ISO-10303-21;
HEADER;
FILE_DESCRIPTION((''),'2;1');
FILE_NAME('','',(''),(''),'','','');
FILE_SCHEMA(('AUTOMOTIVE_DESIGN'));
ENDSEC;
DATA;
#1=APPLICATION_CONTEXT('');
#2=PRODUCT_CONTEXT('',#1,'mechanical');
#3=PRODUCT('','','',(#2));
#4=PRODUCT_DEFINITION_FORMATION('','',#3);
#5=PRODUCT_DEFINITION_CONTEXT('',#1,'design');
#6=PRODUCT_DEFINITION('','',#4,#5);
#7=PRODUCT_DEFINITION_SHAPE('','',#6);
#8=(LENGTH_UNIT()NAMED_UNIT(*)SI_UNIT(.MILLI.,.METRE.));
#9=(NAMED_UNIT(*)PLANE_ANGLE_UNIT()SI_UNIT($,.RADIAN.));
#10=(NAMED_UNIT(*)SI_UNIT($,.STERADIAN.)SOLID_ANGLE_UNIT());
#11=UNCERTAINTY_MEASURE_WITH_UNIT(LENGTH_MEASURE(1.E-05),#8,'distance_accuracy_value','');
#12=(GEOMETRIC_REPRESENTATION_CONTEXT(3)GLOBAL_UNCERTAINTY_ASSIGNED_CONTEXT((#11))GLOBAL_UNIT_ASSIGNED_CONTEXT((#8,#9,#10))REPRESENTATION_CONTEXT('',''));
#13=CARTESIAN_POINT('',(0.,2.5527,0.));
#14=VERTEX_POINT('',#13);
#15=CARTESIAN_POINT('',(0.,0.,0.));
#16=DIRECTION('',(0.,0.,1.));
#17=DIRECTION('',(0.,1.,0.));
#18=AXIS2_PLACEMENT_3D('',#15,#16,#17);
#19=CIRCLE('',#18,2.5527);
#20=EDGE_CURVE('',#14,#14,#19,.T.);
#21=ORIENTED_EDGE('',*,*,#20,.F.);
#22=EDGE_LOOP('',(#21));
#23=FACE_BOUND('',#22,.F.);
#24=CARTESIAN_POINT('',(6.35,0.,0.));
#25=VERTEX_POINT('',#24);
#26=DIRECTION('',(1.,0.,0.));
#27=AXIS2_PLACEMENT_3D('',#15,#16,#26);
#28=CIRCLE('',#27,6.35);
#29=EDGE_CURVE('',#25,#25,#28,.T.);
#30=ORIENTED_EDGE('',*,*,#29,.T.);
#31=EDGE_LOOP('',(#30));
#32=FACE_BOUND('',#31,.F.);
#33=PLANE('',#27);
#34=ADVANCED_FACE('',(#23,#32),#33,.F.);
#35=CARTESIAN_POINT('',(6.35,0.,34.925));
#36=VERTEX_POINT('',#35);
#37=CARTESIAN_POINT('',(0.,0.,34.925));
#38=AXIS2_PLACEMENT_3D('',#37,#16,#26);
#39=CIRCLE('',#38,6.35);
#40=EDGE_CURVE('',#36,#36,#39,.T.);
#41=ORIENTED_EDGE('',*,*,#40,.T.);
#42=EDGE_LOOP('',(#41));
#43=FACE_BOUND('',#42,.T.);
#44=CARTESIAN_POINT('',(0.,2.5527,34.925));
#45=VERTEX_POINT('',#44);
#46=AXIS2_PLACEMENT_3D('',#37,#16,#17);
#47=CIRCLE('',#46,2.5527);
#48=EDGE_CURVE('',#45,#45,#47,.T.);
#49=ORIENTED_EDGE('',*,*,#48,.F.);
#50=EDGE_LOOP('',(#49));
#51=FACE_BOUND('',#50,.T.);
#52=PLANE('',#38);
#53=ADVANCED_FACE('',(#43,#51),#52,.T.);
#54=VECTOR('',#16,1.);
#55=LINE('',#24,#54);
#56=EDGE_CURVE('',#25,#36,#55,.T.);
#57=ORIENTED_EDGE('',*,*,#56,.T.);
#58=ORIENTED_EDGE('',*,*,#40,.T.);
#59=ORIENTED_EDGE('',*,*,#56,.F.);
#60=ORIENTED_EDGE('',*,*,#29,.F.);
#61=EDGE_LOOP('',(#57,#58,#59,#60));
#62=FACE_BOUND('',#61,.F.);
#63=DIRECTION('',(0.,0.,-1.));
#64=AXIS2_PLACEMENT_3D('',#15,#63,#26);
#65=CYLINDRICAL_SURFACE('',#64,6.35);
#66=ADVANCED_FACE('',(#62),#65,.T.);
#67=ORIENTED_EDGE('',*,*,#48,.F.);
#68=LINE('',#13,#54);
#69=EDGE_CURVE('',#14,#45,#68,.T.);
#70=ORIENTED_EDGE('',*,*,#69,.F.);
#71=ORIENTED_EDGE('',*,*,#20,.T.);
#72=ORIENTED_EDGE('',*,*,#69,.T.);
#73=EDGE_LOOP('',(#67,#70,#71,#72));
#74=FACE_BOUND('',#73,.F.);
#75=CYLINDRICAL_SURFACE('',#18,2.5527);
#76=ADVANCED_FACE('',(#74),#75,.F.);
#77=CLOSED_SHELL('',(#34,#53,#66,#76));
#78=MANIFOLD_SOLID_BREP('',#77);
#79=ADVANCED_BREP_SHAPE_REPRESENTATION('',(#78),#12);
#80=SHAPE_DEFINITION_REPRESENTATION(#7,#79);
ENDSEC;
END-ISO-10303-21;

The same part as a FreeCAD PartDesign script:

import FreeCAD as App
import Part
import Sketcher
Q = App.Units.Quantity

doc = App.newDocument("Part")
params = doc.addObject("Spreadsheet::Sheet", "Params")
for row, (alias, value) in enumerate([
    ("sketch1_diameter", "0.5 in"),
    ("pad1_length", "1.375 in"),
    ("sketch2_diameter", "0.201 in"),
    ("hole_diameter", "0.201 in"),
], start=1):
    params.set(f"A{row}", alias)
    params.set(f"B{row}", "=" + value)
    params.setAlias(f"B{row}", alias)

body = doc.addObject("PartDesign::Body", "Body")

# Sketch on XY plane
sketch1 = doc.addObject("Sketcher::SketchObject", "Sketch")
body.addObject(sketch1)
sketch1.AttachmentSupport = (doc.XY_Plane, [""])
sketch1.MapMode = "FlatFace"
sketch1.addGeometry(Part.Circle(App.Vector(0, 0, 0), App.Vector(0, 0, 1), 6.35), False)
sketch1.addConstraint([
    Sketcher.Constraint("Coincident", 0, 3, -1, 1),
    Sketcher.Constraint("Diameter", 0, Q("0.5 in")),
])
sketch1.setExpression("Constraints[1]", "Params.sketch1_diameter")
pad1 = doc.addObject("PartDesign::Pad", "Pad")
body.addObject(pad1)
pad1.Profile = sketch1
pad1.setExpression("Length", "Params.pad1_length")

# Sketch on XY plane
sketch2 = doc.addObject("Sketcher::SketchObject", "Sketch001")
body.addObject(sketch2)
sketch2.AttachmentSupport = (doc.XY_Plane, [""])
sketch2.MapMode = "FlatFace"
sketch2.addGeometry(Part.Circle(App.Vector(0, 0, 0), App.Vector(0, 0, 1), 2.5527), False)
sketch2.addConstraint([
    Sketcher.Constraint("Coincident", 0, 3, -1, 1),
    Sketcher.Constraint("Diameter", 0, Q("0.201 in")),
])
sketch2.setExpression("Constraints[1]", "Params.sketch2_diameter")
doc.recompute()
hole = doc.addObject("PartDesign::Hole", "Hole")
body.addObject(hole)
hole.Profile = sketch2
hole.ThreadType = "None"
hole.setExpression("Diameter", "Params.hole_diameter")
hole.DepthType = "ThroughAll"
hole.Reversed = True

doc.recompute()
